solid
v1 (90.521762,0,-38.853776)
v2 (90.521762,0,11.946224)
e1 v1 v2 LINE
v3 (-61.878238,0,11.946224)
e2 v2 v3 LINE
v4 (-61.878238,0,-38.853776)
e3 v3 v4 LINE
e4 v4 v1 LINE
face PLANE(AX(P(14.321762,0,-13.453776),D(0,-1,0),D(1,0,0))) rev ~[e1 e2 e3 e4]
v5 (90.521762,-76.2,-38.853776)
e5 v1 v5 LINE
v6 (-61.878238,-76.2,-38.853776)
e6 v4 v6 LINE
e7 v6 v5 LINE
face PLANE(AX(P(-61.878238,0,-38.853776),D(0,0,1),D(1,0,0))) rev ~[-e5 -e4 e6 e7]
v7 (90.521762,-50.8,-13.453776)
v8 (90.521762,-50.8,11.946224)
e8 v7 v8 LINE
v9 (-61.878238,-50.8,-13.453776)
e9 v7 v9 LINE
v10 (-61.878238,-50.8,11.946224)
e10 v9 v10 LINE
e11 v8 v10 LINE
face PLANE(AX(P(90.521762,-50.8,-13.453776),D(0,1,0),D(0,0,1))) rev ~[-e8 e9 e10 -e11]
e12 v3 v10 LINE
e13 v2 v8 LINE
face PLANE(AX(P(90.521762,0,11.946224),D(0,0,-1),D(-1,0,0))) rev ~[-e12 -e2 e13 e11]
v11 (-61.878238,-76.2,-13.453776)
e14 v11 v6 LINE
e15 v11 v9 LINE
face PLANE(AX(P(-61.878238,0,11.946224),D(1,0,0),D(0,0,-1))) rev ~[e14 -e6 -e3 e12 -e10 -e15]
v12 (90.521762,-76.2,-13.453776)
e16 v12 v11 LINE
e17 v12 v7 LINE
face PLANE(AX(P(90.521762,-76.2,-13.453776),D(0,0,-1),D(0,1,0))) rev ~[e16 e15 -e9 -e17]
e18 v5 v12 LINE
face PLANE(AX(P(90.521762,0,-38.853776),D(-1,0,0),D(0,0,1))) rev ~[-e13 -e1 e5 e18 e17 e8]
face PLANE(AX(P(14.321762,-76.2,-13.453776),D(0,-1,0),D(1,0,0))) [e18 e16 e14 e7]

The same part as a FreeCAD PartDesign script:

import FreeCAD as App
import Part
import Sketcher
Q = App.Units.Quantity

doc = App.newDocument("Part")
body = doc.addObject("PartDesign::Body", "Body")

sketch1 = body.newObject("Sketcher::SketchObject", "Sketch")
sketch1.AttachmentSupport = (doc.getObject("XZ_Plane"), [""])
sketch1.MapMode = "FlatFace"
sketch1.addGeometry(Part.LineSegment(App.Vector(-61.878238, -38.853776, 0), App.Vector(90.521762, -38.853776, 0)), False)
sketch1.addGeometry(Part.LineSegment(App.Vector(90.521762, -38.853776, 0), App.Vector(90.521762, 11.946224, 0)), False)
sketch1.addGeometry(Part.LineSegment(App.Vector(90.521762, 11.946224, 0), App.Vector(-61.878238, 11.946224, 0)), False)
sketch1.addGeometry(Part.LineSegment(App.Vector(-61.878238, 11.946224, 0), App.Vector(-61.878238, -38.853776, 0)), False)
sketch1.addConstraint(Sketcher.Constraint("Coincident", 0, 2, 1, 1))
sketch1.addConstraint(Sketcher.Constraint("Coincident", 1, 2, 2, 1))
sketch1.addConstraint(Sketcher.Constraint("Coincident", 2, 2, 3, 1))
sketch1.addConstraint(Sketcher.Constraint("Coincident", 3, 2, 0, 1))
sketch1.addConstraint(Sketcher.Constraint("Horizontal", 0))
sketch1.addConstraint(Sketcher.Constraint("Vertical", 1))
sketch1.addConstraint(Sketcher.Constraint("Horizontal", 2))
sketch1.addConstraint(Sketcher.Constraint("Vertical", 3))
sketch1.addConstraint(Sketcher.Constraint("DistanceX", 0, 1, 0, 2, Q("6 in")))
sketch1.addConstraint(Sketcher.Constraint("DistanceY", 1, 1, 1, 2, Q("2 in")))
sketch1.addConstraint(Sketcher.Constraint("DistanceX", -1, 1, 0, 2, 90.521762))
sketch1.addConstraint(Sketcher.Constraint("DistanceY", 0, 2, -1, 1, 38.853776))
pad1 = body.newObject("PartDesign::Pad", "Pad")
pad1.Profile = sketch1
pad1.Length = Q("3 in")

sketch2 = body.newObject("Sketcher::SketchObject", "Sketch001")
sketch2.AttachmentSupport = (doc.getObject("YZ_Plane"), [""])
sketch2.MapMode = "FlatFace"
sketch2.AttachmentOffset = App.Placement(App.Vector(0, 0, 90.521762), App.Rotation())
sketch2.addGeometry(Part.LineSegment(App.Vector(-76.2, 11.946224, 0), App.Vector(-76.2, -13.453776, 0)), False)
sketch2.addGeometry(Part.LineSegment(App.Vector(-76.2, -13.453776, 0), App.Vector(-50.8, -13.453776, 0)), False)
sketch2.addGeometry(Part.LineSegment(App.Vector(-50.8, -13.453776, 0), App.Vector(-50.8, 11.946224, 0)), False)
sketch2.addGeometry(Part.LineSegment(App.Vector(-50.8, 11.946224, 0), App.Vector(-76.2, 11.946224, 0)), False)
sketch2.addConstraint(Sketcher.Constraint("Coincident", 0, 2, 1, 1))
sketch2.addConstraint(Sketcher.Constraint("Coincident", 1, 2, 2, 1))
sketch2.addConstraint(Sketcher.Constraint("Coincident", 2, 2, 3, 1))
sketch2.addConstraint(Sketcher.Constraint("Coincident", 3, 2, 0, 1))
sketch2.addConstraint(Sketcher.Constraint("Vertical", 0))
sketch2.addConstraint(Sketcher.Constraint("Horizontal", 1))
sketch2.addConstraint(Sketcher.Constraint("Vertical", 2))
sketch2.addConstraint(Sketcher.Constraint("Horizontal", 3))
sketch2.addConstraint(Sketcher.Constraint("Equal", 3, 0))
sketch2.addConstraint(Sketcher.Constraint("DistanceX", 1, 1, 1, 2, Q("1 in")))
sketch2.addConstraint(Sketcher.Constraint("DistanceX", 0, 2, -1, 1, Q("3 in")))
sketch2.addConstraint(Sketcher.Constraint("DistanceY", 0, 2, -1, 1, 13.453776))
pocket1 = body.newObject("PartDesign::Pocket", "Pocket")
pocket1.Profile = sketch2
pocket1.Length = Q("6 in")

doc.recompute()
